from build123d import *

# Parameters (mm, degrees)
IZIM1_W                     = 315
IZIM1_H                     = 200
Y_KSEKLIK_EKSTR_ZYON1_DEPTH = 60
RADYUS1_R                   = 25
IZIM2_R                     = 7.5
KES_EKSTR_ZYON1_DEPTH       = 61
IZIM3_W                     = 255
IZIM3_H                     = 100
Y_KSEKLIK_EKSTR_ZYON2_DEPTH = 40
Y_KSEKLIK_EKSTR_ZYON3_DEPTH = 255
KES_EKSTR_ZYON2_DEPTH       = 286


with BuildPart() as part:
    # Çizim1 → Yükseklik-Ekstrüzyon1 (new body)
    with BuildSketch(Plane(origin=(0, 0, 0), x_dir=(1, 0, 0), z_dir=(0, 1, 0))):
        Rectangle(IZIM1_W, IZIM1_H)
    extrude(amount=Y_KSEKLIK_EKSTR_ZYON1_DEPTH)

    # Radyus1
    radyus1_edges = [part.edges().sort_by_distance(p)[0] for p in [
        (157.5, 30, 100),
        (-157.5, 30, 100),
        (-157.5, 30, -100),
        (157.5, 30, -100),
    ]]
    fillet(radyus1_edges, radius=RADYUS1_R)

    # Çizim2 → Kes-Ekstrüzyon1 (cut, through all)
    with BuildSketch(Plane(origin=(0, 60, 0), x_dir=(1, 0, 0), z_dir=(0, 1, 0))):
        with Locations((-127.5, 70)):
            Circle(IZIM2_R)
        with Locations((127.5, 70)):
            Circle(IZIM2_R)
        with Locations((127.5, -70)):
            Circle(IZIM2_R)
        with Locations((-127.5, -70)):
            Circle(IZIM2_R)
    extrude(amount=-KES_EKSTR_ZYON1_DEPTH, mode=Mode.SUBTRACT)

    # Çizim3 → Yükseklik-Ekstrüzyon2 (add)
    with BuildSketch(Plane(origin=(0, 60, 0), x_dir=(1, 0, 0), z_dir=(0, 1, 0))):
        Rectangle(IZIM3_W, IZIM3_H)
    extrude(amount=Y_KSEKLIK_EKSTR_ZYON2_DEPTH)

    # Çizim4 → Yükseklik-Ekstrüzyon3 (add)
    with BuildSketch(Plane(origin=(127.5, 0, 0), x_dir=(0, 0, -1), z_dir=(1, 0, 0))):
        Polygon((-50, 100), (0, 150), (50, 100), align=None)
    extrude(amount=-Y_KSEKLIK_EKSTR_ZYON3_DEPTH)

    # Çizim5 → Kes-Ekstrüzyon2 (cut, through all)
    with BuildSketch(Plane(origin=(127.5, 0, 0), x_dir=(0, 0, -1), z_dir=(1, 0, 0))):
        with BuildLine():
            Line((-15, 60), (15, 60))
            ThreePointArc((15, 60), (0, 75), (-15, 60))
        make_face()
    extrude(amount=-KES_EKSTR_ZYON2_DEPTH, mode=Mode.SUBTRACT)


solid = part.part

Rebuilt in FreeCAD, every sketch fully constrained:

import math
import FreeCAD as App
import Part
import Sketcher
from FreeCAD import Vector
Q = App.Units.Quantity


def edges_at(feature, points):
    """Names of the edges that pass closest to the given points."""
    edges = feature.Shape.Edges
    near = lambda p: min(range(len(edges)), key=lambda i: edges[i].distToShape(Part.Vertex(*p))[0])
    return sorted({f"Edge{near(p) + 1}" for p in points})


def add_polygon(sketch, points):
    """Adds a closed chain of lines whose ends are joined by coincident constraints."""
    first, n = sketch.GeometryCount, len(points)
    for a, b in zip(points, points[1:] + points[:1]):
        sketch.addGeometry(Part.LineSegment(App.Vector(*a, 0), App.Vector(*b, 0)), False)
    for i in range(n):
        sketch.addConstraint(Sketcher.Constraint("Coincident", first + i, 2, first + (i + 1) % n, 1))

doc = App.newDocument("Part")
body = doc.addObject("PartDesign::Body", "Body")

sketch1 = body.newObject("Sketcher::SketchObject", "Sketch")
sketch1.AttachmentSupport = (doc.getObject("XZ_Plane"), [""])
sketch1.MapMode = "FlatFace"
add_polygon(sketch1, [(-158, -100), (-158, 100), (158, 100), (158, -100)])
sketch1.addConstraint(Sketcher.Constraint("Vertical", 0))
sketch1.addConstraint(Sketcher.Constraint("Horizontal", 1))
sketch1.addConstraint(Sketcher.Constraint("Vertical", 2))
sketch1.addConstraint(Sketcher.Constraint("Horizontal", 3))
sketch1.addConstraint(Sketcher.Constraint("Symmetric", 0, 2, 2, 2, -1, 1))
sketch1.addConstraint(Sketcher.Constraint("DistanceX", 1, 1, 1, 2, Q("315 mm")))
sketch1.addConstraint(Sketcher.Constraint("DistanceY", 0, 1, 0, 2, Q("200 mm")))
pad1 = body.newObject("PartDesign::Pad", "Pad")
pad1.Profile = sketch1
pad1.Length = 60
pad1.Reversed = True
doc.recompute()

fillet = body.newObject("PartDesign::Fillet", "Fillet")
fillet.Base = (pad1, edges_at(pad1, [
    (157.5, 30, 100),
    (-157.5, 30, 100),
    (-157.5, 30, -100),
    (157.5, 30, -100),
]))
fillet.Radius = 25

sketch2 = body.newObject("Sketcher::SketchObject", "Sketch001")
sketch2.AttachmentSupport = (doc.getObject("XZ_Plane"), [""])
sketch2.MapMode = "FlatFace"
sketch2.AttachmentOffset = App.Placement(Vector(0, 0, -60), App.Rotation())
sketch2.addGeometry(Part.Circle(Vector(-128, -70, 0), Vector(0, 0, 1), 8), False)
sketch2.addGeometry(Part.Circle(Vector(128, -70, 0), Vector(0, 0, 1), 8), False)
sketch2.addGeometry(Part.Circle(Vector(128, 70, 0), Vector(0, 0, 1), 8), False)
sketch2.addGeometry(Part.Circle(Vector(-128, 70, 0), Vector(0, 0, 1), 8), False)
sketch2.addConstraint(Sketcher.Constraint("Equal", 0, 1))
sketch2.addConstraint(Sketcher.Constraint("Equal", 1, 2))
sketch2.addConstraint(Sketcher.Constraint("Equal", 2, 3))
sketch2.addConstraint(Sketcher.Constraint("Symmetric", 0, 3, 2, 3, -1, 1))
sketch2.addConstraint(Sketcher.Constraint("Symmetric", 1, 3, 3, 3, -1, 1))
sketch2.addConstraint(Sketcher.Constraint("Symmetric", 0, 3, 1, 3, -2))
sketch2.addConstraint(Sketcher.Constraint("Diameter", 0, Q("15 mm")))
sketch2.addConstraint(Sketcher.Constraint("DistanceY", 0, 3, -1, 1, Q("70 mm")))
sketch2.addConstraint(Sketcher.Constraint("DistanceX", 0, 3, 1, 3, Q("255 mm")))
pocket1 = body.newObject("PartDesign::Pocket", "Pocket")
pocket1.Profile = sketch2
pocket1.Type = "ThroughAll"
pocket1.Reversed = True

sketch3 = body.newObject("Sketcher::SketchObject", "Sketch002")
sketch3.AttachmentSupport = (doc.getObject("XZ_Plane"), [""])
sketch3.MapMode = "FlatFace"
sketch3.AttachmentOffset = App.Placement(Vector(0, 0, -60), App.Rotation())
add_polygon(sketch3, [(-128, -50), (-128, 50), (128, 50), (128, -50)])
sketch3.addConstraint(Sketcher.Constraint("Vertical", 0))
sketch3.addConstraint(Sketcher.Constraint("Horizontal", 1))
sketch3.addConstraint(Sketcher.Constraint("Vertical", 2))
sketch3.addConstraint(Sketcher.Constraint("Horizontal", 3))
sketch3.addConstraint(Sketcher.Constraint("Symmetric", 0, 2, 2, 2, -1, 1))
sketch3.addConstraint(Sketcher.Constraint("DistanceX", 1, 1, 1, 2, Q("255 mm")))
sketch3.addConstraint(Sketcher.Constraint("DistanceY", 0, 1, 0, 2, Q("100 mm")))
pad2 = body.newObject("PartDesign::Pad", "Pad001")
pad2.Profile = sketch3
pad2.Length = 40
pad2.Reversed = True

sketch4 = body.newObject("Sketcher::SketchObject", "Sketch003")
sketch4.AttachmentSupport = (doc.getObject("YZ_Plane"), [""])
sketch4.MapMode = "FlatFace"
sketch4.AttachmentOffset = App.Placement(Vector(0, 0, 127.5), App.Rotation())
add_polygon(sketch4, [(150, 0), (100, 50), (100, -50)])
sketch4.addConstraint(Sketcher.Constraint("Vertical", 1))
sketch4.addConstraint(Sketcher.Constraint("PointOnObject", 2, 2, -1))
sketch4.addConstraint(Sketcher.Constraint("Perpendicular", 0, 2))
sketch4.addConstraint(Sketcher.Constraint("Equal", 0, 2))
sketch4.addConstraint(Sketcher.Constraint("DistanceY", 1, 2, 1, 1, Q("100 mm")))
sketch4.addConstraint(Sketcher.Constraint("DistanceX", -1, 1, 0, 2, Q("100 mm")))
pad3 = body.newObject("PartDesign::Pad", "Pad002")
pad3.Profile = sketch4
pad3.Length = 255
pad3.Reversed = True

sketch5 = body.newObject("Sketcher::SketchObject", "Sketch004")
sketch5.AttachmentSupport = (doc.getObject("YZ_Plane"), [""])
sketch5.MapMode = "FlatFace"
sketch5.AttachmentOffset = App.Placement(Vector(0, 0, 127.5), App.Rotation())
sketch5.addGeometry(Part.LineSegment(Vector(60, 15, 0), Vector(60, -15, 0)), False)
sketch5.addGeometry(Part.ArcOfCircle(Part.Circle(Vector(60, 0, 0), Vector(0, 0, 1), 15), math.radians(-90), math.radians(90)), False)
sketch5.addConstraint(Sketcher.Constraint("Coincident", 0, 1, 1, 2))
sketch5.addConstraint(Sketcher.Constraint("Coincident", 1, 1, 0, 2))
sketch5.addConstraint(Sketcher.Constraint("Vertical", 0))
sketch5.addConstraint(Sketcher.Constraint("PointOnObject", 1, 3, -1))
sketch5.addConstraint(Sketcher.Constraint("Vertical", 1, 3, 0, 1))
sketch5.addConstraint(Sketcher.Constraint("Radius", 1, Q("15 mm")))
sketch5.addConstraint(Sketcher.Constraint("DistanceX", -1, 1, 1, 3, Q("60 mm")))
pocket2 = body.newObject("PartDesign::Pocket", "Pocket001")
pocket2.Profile = sketch5
pocket2.Type = "ThroughAll"

doc.recompute()
